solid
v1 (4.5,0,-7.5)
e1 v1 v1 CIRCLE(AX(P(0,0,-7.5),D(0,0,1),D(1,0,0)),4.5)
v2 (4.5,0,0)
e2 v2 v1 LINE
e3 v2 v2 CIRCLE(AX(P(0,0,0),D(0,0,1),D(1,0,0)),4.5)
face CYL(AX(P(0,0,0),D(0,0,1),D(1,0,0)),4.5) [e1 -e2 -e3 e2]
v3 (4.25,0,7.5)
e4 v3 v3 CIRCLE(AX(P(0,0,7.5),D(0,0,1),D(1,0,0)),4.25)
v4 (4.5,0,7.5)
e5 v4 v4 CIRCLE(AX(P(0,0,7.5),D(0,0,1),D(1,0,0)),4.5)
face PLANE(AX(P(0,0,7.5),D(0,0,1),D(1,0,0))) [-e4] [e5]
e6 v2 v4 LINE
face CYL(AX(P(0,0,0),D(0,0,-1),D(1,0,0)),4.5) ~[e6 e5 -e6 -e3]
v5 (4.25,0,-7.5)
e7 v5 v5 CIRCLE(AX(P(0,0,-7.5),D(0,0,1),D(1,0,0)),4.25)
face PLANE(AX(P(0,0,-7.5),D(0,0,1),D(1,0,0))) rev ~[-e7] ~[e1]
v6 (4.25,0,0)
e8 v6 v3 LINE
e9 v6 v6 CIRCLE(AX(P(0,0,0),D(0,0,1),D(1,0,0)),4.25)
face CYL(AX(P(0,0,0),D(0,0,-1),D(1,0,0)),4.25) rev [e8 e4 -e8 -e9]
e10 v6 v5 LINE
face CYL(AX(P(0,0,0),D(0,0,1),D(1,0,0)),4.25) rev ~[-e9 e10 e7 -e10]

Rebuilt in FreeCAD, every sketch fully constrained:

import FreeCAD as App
import Part
import Sketcher

V = App.Vector
Q = App.Units.Quantity

doc = App.newDocument("Part")
params = doc.addObject("Spreadsheet::Sheet", "Params")
for row, (alias, value) in enumerate([
    ("sketch1_diameter", "9 mm"),
    ("sketch1_diameter2", "8.5 mm"),
    ("pad1_length", "15 mm"),
], start=1):
    params.set(f"A{row}", alias)
    params.set(f"B{row}", "=" + value)
    params.setAlias(f"B{row}", alias)

body = doc.addObject("PartDesign::Body", "Body")

# Sketch on XY plane
sketch1 = body.newObject("Sketcher::SketchObject", "Sketch")
sketch1.AttachmentSupport = (doc.getObject("XY_Plane"), [""])
sketch1.MapMode = "FlatFace"
sketch1.addGeometry([
    Part.Circle(V(0, 0, 0), V(0, 0, 1), 4.5),
    Part.Circle(V(0, 0, 0), V(0, 0, 1), 4.25),
], False)
sketch1.addConstraint([
    Sketcher.Constraint("Coincident", 0, 3, -1, 1),
    Sketcher.Constraint("Coincident", 1, 3, -1, 1),
    Sketcher.Constraint("Diameter", 0, Q("9 mm")),
    Sketcher.Constraint("Diameter", 1, Q("8.5 mm")),
])
sketch1.setExpression("Constraints[2]", "Params.sketch1_diameter")
sketch1.setExpression("Constraints[3]", "Params.sketch1_diameter2")
pad1 = body.newObject("PartDesign::Pad", "Pad")
pad1.Profile = sketch1
pad1.setExpression("Length", "Params.pad1_length")
pad1.Midplane = True

doc.recompute()
